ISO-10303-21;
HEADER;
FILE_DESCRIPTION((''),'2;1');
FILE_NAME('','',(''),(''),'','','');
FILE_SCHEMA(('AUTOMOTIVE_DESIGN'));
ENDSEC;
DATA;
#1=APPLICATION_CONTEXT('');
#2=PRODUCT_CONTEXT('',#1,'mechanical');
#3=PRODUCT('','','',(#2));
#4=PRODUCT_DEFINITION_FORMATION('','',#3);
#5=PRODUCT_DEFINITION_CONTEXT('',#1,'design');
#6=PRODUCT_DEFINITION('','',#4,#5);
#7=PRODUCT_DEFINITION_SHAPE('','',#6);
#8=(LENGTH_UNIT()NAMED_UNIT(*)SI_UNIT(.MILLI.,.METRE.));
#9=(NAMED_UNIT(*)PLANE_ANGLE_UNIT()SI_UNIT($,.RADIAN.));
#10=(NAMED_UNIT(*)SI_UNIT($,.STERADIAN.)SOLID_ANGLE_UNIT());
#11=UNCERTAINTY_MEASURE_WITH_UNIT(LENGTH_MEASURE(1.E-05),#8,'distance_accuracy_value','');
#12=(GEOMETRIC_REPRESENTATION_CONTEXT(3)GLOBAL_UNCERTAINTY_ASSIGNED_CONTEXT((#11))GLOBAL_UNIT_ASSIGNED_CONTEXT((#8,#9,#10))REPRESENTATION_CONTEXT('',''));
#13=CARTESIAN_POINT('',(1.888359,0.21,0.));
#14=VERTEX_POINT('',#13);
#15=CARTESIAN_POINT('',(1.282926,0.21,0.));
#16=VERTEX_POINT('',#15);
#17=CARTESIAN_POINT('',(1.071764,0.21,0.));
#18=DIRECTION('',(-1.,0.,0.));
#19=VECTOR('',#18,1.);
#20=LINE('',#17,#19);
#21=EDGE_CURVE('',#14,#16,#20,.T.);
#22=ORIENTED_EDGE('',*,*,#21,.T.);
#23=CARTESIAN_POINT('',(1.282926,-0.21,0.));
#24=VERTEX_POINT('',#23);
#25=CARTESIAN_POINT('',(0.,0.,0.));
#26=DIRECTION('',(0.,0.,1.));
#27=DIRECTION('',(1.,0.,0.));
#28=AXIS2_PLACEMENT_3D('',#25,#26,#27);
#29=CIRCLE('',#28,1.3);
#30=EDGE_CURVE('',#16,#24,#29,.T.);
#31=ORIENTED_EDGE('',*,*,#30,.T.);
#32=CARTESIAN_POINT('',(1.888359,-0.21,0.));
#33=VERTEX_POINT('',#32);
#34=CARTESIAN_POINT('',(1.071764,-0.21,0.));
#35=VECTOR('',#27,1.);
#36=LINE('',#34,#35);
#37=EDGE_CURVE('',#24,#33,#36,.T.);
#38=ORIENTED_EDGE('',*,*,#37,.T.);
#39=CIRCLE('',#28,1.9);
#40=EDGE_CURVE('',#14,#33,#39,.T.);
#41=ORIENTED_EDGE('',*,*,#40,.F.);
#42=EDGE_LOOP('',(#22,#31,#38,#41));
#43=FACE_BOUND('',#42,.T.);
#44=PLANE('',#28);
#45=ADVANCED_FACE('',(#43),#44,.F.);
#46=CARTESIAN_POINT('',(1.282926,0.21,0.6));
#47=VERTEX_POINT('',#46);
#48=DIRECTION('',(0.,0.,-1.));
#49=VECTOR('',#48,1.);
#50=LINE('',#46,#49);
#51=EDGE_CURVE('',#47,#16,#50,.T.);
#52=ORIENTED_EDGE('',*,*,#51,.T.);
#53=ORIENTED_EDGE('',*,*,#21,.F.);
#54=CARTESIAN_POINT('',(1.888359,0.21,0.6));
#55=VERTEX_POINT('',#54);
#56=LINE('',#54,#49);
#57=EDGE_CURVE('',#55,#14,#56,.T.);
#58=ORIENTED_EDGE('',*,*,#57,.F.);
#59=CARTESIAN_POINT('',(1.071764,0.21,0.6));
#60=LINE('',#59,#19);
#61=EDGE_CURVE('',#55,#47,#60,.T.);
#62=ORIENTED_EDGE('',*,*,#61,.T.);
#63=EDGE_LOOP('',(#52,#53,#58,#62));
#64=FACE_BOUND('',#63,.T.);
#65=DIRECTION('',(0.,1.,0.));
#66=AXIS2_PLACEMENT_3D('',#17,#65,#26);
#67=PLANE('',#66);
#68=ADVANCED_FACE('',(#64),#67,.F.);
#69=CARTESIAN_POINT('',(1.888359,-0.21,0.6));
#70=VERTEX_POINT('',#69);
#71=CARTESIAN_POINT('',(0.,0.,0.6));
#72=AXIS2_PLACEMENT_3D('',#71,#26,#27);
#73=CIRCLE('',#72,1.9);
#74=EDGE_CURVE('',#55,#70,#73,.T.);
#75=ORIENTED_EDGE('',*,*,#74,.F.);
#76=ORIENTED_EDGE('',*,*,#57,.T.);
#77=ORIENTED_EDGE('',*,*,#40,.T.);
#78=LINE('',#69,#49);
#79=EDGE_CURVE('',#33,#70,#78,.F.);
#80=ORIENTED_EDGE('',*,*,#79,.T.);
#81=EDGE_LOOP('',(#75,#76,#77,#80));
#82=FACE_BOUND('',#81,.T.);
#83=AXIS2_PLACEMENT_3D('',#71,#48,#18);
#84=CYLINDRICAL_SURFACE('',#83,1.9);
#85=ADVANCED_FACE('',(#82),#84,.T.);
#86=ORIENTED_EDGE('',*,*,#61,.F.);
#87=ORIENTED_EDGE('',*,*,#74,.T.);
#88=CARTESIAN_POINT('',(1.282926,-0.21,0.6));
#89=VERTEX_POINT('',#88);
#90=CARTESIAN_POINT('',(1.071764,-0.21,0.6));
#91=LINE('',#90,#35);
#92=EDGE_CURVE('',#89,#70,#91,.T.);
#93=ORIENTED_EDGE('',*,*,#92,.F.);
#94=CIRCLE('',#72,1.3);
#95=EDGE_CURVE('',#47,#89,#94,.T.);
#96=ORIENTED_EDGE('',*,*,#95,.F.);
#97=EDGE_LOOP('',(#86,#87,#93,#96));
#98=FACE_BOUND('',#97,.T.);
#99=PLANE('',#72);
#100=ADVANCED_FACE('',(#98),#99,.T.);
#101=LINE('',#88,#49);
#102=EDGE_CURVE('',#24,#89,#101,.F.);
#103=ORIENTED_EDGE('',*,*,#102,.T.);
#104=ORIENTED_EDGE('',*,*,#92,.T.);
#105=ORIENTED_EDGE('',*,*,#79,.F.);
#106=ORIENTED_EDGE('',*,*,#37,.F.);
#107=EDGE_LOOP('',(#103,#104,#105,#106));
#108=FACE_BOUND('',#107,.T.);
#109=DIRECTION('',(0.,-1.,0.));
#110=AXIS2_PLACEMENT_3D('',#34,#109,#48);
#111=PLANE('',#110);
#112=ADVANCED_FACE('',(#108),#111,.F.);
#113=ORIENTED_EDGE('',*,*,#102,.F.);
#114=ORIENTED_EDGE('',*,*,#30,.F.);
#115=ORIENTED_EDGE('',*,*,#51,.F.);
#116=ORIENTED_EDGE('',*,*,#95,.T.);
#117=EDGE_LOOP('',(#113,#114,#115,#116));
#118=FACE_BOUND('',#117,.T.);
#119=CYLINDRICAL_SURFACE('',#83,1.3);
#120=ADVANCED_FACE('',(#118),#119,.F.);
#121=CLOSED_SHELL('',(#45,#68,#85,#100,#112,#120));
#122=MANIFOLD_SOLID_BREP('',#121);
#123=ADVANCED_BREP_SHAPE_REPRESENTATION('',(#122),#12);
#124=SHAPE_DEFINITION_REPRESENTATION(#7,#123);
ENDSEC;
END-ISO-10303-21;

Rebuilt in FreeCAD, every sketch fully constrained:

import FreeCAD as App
import Part
import Sketcher
Q = App.Units.Quantity

doc = App.newDocument("Part")
body = doc.addObject("PartDesign::Body", "Body")

# Sketch on XY plane
sketch1 = body.newObject("Sketcher::SketchObject", "Sketch")
sketch1.AttachmentSupport = (doc.getObject("XY_Plane"), [""])
sketch1.MapMode = "FlatFace"
sketch1.addGeometry(Part.Circle(App.Vector(0, 0, 0), App.Vector(0, 0, 1), 1.9), False)
sketch1.addGeometry(Part.Circle(App.Vector(0, 0, 0), App.Vector(0, 0, 1), 1.3), False)
sketch1.addConstraint(Sketcher.Constraint("Coincident", 0, 3, -1, 1))
sketch1.addConstraint(Sketcher.Constraint("Coincident", 1, 3, -1, 1))
sketch1.addConstraint(Sketcher.Constraint("Diameter", 0, Q("3.8 mm")))
sketch1.addConstraint(Sketcher.Constraint("Diameter", 1, Q("2.6 mm")))
pad1 = body.newObject("PartDesign::Pad", "Pad")
pad1.Profile = sketch1
pad1.Length = 0.6

# Sketch on XY plane
sketch2 = body.newObject("Sketcher::SketchObject", "Sketch001")
sketch2.AttachmentSupport = (doc.getObject("XY_Plane"), [""])
sketch2.MapMode = "FlatFace"
sketch2.AttachmentOffset = App.Placement(App.Vector(0, 0, 0.6), App.Rotation())
sketch2.addGeometry(Part.LineSegment(App.Vector(1.07, 0.21, 0), App.Vector(1.07, -0.21, 0)), False)
sketch2.addGeometry(Part.LineSegment(App.Vector(1.07, -0.21, 0), App.Vector(3.32, -0.21, 0)), False)
sketch2.addGeometry(Part.LineSegment(App.Vector(3.32, -0.21, 0), App.Vector(3.32, 0.21, 0)), False)
sketch2.addGeometry(Part.LineSegment(App.Vector(3.32, 0.21, 0), App.Vector(1.07, 0.21, 0)), False)
sketch2.addConstraint(Sketcher.Constraint("Coincident", 0, 2, 1, 1))
sketch2.addConstraint(Sketcher.Constraint("Coincident", 1, 2, 2, 1))
sketch2.addConstraint(Sketcher.Constraint("Coincident", 2, 2, 3, 1))
sketch2.addConstraint(Sketcher.Constraint("Coincident", 3, 2, 0, 1))
sketch2.addConstraint(Sketcher.Constraint("Vertical", 0))
sketch2.addConstraint(Sketcher.Constraint("Horizontal", 1))
sketch2.addConstraint(Sketcher.Constraint("Vertical", 2))
sketch2.addConstraint(Sketcher.Constraint("Horizontal", 3))
sketch2.addConstraint(Sketcher.Constraint("DistanceY", 0, 2, 0, 1, Q("0.42 mm")))
sketch2.addConstraint(Sketcher.Constraint("DistanceY", 0, 2, -1, 1, Q("0.21 mm")))
sketch2.addConstraint(Sketcher.Constraint("DistanceX", 1, 1, 1, 2, Q("2.246639 mm")))
sketch2.addConstraint(Sketcher.Constraint("DistanceX", -1, 1, 0, 2, Q("1.071764 mm")))
pocket1 = body.newObject("PartDesign::Pocket", "Pocket")
pocket1.Profile = sketch2
pocket1.Type = "ThroughAll"

doc.recompute()
